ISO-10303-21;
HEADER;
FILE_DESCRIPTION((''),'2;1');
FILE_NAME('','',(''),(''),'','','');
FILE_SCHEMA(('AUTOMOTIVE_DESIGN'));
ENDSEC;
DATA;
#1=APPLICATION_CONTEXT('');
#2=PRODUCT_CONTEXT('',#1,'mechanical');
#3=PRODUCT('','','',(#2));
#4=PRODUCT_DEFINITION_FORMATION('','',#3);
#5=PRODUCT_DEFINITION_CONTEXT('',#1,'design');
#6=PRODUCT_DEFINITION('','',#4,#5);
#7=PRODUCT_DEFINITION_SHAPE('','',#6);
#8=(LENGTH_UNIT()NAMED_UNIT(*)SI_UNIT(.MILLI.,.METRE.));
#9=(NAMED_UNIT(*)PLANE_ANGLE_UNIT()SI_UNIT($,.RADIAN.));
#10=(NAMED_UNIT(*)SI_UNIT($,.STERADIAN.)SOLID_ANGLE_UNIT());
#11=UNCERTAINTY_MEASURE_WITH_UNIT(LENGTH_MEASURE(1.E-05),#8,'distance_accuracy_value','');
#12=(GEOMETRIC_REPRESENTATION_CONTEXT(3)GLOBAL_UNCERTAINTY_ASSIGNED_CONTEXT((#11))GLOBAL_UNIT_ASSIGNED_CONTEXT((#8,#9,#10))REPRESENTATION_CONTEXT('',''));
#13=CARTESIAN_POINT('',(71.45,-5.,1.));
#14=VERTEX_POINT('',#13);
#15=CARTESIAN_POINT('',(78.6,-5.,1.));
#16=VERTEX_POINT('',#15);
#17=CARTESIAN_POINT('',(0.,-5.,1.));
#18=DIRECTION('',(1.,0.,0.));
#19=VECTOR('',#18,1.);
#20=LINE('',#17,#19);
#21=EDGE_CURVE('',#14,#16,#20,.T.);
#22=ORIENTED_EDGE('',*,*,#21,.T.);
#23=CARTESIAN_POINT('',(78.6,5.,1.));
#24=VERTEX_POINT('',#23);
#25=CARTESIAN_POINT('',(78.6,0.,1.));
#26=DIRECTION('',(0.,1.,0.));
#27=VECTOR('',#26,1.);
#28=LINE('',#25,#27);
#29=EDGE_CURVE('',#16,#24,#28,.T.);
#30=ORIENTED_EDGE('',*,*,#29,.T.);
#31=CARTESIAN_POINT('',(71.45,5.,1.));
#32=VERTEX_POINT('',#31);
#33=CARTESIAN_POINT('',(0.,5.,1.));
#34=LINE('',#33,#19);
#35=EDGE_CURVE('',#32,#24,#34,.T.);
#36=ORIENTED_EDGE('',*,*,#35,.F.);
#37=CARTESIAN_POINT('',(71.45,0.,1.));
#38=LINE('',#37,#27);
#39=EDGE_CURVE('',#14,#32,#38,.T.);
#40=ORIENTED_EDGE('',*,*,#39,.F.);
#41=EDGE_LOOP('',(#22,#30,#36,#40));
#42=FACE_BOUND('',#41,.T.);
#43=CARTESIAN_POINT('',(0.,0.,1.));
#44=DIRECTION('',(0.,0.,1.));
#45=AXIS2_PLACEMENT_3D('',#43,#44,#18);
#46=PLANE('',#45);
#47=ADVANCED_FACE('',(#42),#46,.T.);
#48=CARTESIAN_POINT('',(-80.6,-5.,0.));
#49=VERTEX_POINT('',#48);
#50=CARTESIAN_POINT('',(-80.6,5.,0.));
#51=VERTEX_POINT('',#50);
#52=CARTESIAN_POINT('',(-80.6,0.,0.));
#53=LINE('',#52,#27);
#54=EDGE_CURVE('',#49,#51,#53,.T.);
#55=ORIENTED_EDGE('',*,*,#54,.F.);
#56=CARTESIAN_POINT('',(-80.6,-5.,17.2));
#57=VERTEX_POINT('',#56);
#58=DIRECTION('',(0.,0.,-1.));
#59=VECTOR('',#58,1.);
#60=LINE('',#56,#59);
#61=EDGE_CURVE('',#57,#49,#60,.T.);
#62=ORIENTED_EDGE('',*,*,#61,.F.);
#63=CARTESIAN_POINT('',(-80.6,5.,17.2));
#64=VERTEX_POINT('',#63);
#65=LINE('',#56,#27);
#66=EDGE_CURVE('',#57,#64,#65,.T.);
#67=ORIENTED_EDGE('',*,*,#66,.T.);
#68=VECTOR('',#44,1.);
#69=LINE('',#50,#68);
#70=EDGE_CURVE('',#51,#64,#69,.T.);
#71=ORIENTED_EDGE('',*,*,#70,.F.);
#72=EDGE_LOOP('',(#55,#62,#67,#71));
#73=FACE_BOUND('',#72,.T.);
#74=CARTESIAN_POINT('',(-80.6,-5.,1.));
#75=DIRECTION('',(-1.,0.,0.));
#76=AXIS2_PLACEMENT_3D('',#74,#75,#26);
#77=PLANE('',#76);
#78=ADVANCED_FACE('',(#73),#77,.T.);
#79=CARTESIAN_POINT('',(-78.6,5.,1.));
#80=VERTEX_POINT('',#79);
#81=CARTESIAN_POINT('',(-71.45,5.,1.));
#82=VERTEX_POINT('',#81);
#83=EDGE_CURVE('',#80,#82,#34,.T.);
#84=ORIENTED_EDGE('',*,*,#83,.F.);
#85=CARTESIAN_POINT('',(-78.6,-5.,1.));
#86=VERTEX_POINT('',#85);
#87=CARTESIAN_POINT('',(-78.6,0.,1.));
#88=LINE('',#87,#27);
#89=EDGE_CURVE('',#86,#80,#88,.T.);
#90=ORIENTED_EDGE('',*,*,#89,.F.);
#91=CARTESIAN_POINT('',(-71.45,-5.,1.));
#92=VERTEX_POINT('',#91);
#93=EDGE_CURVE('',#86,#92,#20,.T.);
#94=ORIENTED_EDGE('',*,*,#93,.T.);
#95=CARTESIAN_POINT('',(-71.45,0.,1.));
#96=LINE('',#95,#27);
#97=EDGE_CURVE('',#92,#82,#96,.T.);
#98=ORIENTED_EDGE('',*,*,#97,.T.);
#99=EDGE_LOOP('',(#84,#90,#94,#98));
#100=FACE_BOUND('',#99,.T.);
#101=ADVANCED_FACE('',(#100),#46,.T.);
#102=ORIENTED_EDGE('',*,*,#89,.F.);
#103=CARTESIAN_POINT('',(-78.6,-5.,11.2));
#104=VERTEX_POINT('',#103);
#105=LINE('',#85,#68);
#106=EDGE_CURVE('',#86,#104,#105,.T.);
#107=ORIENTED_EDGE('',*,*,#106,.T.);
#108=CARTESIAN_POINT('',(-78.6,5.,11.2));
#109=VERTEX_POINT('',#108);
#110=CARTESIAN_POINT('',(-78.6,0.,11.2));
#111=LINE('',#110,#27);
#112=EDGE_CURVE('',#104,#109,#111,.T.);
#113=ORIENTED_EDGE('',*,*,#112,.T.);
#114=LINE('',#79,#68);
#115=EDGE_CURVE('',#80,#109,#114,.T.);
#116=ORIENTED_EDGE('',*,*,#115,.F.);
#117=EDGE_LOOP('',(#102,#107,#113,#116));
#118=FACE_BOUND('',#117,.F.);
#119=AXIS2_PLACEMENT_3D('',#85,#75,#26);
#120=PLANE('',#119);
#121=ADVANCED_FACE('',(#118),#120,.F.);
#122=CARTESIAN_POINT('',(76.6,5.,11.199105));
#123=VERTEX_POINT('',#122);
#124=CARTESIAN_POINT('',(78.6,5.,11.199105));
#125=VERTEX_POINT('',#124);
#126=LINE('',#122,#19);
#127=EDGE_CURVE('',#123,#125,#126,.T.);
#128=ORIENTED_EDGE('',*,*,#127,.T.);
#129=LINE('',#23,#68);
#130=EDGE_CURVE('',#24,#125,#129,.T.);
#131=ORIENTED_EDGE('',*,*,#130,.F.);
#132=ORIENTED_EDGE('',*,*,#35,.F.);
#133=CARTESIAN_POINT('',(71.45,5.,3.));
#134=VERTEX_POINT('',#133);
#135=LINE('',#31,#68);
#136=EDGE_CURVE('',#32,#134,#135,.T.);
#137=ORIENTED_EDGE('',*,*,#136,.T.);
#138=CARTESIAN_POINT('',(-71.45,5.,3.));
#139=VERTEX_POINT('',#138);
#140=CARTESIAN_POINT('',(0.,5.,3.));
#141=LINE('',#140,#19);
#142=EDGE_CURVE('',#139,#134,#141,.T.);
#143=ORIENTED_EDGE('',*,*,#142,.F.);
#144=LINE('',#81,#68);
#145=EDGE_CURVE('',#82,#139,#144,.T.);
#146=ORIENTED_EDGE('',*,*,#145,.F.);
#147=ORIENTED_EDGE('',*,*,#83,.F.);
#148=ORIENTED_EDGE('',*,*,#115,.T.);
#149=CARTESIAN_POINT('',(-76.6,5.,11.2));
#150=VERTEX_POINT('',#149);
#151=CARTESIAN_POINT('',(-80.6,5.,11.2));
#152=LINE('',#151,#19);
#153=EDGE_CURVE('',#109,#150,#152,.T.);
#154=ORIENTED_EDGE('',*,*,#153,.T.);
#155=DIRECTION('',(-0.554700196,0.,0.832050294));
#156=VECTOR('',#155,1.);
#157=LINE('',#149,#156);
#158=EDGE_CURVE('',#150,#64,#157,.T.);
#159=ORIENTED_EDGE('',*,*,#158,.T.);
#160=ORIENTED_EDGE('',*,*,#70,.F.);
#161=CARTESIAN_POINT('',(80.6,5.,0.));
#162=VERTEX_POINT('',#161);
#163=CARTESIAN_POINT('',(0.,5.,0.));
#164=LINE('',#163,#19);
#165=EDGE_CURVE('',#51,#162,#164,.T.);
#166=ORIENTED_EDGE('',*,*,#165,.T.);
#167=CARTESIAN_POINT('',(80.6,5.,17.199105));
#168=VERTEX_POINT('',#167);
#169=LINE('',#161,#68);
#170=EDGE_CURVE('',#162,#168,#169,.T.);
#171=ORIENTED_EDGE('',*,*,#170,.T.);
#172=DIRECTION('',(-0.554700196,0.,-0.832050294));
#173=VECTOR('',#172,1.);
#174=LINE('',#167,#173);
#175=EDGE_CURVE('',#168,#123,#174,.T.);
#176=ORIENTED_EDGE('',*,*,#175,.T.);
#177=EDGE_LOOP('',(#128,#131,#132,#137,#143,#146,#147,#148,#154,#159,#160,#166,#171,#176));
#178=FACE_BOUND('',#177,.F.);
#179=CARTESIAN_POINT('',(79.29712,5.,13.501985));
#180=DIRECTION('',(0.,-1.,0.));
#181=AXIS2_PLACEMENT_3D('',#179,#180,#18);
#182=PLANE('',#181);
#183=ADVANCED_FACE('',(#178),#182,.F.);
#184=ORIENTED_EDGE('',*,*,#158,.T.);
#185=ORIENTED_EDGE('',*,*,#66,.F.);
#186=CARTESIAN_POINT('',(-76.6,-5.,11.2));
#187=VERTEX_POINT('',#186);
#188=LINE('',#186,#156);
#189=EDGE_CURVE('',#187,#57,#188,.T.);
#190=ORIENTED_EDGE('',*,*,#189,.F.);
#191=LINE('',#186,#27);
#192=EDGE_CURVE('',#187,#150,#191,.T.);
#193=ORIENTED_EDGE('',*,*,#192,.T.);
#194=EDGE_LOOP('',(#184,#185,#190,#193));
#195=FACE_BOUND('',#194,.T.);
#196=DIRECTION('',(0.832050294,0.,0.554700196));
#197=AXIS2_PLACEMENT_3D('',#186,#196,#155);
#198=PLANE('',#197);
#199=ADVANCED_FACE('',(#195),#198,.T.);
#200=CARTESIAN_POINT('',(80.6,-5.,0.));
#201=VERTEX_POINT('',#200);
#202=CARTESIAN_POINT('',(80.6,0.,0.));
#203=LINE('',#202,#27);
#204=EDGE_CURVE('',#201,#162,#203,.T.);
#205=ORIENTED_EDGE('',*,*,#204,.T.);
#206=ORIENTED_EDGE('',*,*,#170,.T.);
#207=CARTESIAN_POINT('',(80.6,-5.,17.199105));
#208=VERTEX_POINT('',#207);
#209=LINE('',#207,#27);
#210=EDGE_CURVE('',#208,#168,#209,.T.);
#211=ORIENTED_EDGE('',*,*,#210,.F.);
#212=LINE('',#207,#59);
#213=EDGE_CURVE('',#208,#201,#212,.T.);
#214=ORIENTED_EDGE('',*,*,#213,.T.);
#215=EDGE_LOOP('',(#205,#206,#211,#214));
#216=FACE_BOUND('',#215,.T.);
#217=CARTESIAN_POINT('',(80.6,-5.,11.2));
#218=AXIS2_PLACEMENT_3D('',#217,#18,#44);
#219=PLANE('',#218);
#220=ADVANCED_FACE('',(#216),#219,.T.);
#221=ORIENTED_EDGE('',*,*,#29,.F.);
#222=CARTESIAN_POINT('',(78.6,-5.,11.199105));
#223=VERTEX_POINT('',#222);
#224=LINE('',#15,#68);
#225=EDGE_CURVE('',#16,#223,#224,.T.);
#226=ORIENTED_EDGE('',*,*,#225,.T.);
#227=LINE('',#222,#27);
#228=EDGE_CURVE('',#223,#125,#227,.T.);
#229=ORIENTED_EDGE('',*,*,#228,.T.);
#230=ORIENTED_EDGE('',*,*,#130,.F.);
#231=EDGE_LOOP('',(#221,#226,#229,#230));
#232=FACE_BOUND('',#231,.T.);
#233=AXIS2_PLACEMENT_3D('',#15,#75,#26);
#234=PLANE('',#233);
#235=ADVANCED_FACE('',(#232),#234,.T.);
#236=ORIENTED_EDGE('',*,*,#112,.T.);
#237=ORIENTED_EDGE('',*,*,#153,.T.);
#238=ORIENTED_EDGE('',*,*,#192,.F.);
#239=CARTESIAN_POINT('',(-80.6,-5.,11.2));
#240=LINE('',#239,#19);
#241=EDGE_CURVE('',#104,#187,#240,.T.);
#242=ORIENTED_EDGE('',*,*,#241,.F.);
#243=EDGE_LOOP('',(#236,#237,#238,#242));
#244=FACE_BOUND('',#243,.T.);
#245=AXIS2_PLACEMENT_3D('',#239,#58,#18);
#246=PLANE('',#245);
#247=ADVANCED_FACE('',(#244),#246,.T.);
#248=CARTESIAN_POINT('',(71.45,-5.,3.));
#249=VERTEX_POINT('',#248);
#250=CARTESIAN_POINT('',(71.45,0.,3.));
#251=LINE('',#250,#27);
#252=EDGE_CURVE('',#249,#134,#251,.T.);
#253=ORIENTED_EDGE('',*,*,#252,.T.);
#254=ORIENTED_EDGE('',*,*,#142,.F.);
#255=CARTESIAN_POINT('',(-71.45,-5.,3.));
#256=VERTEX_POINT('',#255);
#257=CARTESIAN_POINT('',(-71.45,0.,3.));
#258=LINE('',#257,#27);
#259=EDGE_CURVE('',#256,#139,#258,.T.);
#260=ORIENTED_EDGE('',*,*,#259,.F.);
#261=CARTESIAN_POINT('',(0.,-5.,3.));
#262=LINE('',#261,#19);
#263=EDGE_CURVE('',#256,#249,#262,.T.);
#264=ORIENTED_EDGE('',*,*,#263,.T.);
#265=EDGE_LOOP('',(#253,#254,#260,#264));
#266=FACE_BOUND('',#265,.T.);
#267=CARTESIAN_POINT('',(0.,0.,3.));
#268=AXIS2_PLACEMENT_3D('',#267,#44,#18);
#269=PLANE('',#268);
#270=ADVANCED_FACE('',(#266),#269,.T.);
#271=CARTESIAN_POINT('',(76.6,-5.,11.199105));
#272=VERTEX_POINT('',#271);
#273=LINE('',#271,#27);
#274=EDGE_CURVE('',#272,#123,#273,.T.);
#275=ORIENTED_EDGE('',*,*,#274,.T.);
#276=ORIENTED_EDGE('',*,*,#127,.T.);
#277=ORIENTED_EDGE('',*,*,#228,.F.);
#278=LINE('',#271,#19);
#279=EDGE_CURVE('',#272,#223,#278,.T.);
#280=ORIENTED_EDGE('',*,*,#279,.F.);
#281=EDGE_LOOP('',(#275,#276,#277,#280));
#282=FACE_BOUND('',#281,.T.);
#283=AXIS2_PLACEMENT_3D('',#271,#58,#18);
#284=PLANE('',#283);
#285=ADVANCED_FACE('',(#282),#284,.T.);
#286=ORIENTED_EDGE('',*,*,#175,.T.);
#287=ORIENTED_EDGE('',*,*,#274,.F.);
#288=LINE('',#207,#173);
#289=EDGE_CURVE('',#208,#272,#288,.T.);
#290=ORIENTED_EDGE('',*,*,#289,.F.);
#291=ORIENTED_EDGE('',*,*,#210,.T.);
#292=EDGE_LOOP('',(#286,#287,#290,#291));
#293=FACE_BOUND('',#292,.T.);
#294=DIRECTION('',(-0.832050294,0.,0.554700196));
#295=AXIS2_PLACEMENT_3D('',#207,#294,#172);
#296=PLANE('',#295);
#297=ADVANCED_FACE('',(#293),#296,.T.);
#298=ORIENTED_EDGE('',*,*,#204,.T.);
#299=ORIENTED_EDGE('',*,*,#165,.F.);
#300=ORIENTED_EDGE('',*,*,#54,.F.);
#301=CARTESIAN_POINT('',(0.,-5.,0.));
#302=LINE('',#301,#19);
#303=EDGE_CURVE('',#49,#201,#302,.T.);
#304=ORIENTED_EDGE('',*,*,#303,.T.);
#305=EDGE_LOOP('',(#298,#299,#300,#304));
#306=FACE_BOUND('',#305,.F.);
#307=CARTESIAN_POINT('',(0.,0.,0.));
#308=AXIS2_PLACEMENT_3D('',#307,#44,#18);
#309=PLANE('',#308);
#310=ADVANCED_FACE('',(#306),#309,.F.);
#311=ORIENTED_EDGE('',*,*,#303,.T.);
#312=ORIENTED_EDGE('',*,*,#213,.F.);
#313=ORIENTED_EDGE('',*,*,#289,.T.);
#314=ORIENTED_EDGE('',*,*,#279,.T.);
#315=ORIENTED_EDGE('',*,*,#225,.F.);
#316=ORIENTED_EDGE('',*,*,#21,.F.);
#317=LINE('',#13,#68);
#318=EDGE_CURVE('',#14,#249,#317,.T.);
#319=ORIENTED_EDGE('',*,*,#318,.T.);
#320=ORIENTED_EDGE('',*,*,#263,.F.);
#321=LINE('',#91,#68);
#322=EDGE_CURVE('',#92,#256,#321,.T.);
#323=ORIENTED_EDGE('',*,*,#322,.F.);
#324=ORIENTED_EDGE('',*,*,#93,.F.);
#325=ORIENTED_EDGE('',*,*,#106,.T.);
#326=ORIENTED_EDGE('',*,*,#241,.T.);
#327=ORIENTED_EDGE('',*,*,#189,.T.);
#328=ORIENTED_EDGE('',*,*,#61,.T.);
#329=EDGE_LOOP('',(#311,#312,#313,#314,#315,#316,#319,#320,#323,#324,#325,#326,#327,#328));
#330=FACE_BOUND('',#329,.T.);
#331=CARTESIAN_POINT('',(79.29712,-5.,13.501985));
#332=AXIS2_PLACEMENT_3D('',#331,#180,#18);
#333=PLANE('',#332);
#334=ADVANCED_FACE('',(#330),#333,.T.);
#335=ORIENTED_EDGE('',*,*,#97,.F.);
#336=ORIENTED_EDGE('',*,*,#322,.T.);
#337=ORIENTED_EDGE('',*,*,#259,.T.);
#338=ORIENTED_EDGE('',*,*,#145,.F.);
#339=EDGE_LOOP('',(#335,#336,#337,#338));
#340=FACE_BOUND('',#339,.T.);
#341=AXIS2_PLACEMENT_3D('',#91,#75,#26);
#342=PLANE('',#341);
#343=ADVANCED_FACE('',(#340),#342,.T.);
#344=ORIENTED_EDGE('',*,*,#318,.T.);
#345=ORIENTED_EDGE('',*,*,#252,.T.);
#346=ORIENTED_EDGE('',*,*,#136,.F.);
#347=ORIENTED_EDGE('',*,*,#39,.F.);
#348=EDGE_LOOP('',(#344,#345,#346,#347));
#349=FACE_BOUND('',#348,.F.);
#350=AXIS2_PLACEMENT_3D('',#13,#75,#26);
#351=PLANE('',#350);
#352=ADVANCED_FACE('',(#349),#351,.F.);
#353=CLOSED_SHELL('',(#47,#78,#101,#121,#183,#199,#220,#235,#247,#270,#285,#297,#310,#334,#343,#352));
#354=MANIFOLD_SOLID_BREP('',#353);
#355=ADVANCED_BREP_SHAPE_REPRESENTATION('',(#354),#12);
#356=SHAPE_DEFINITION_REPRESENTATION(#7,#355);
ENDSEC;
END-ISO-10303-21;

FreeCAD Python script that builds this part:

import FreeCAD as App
import Part
import Sketcher
Q = App.Units.Quantity


def add_polygon(sketch, points):
    """Adds a closed chain of lines whose ends are joined by coincident constraints."""
    first, n = sketch.GeometryCount, len(points)
    for a, b in zip(points, points[1:] + points[:1]):
        sketch.addGeometry(Part.LineSegment(App.Vector(*a, 0), App.Vector(*b, 0)), False)
    for i in range(n):
        sketch.addConstraint(Sketcher.Constraint("Coincident", first + i, 2, first + (i + 1) % n, 1))

doc = App.newDocument("Part")
body = doc.addObject("PartDesign::Body", "Body")

# Sketch on XY plane
sketch1 = doc.addObject("Sketcher::SketchObject", "Sketch")
body.addObject(sketch1)
sketch1.AttachmentSupport = (doc.XY_Plane, [""])
sketch1.MapMode = "FlatFace"
add_polygon(sketch1, [(-80.6, 5), (-80.6, -5), (80.6, -5), (80.6, 5)])  # lines 0-3
sketch1.addConstraint([
    Sketcher.Constraint("Vertical", 0),
    Sketcher.Constraint("Horizontal", 1),
    Sketcher.Constraint("Vertical", 2),
    Sketcher.Constraint("Horizontal", 3),
    Sketcher.Constraint("Symmetric", 0, 2, 2, 2, -1, 1),
    Sketcher.Constraint("DistanceY", 0, 2, 0, 1, Q("10 mm")),
    Sketcher.Constraint("DistanceX", 1, 1, 1, 2, Q("161.2 mm")),
])
pad1 = doc.addObject("PartDesign::Pad", "Pad")
body.addObject(pad1)
pad1.Profile = sketch1
pad1.Length = 1

# Sketch on XY plane
sketch2 = doc.addObject("Sketcher::SketchObject", "Sketch001")
body.addObject(sketch2)
sketch2.AttachmentSupport = (doc.XY_Plane, [""])
sketch2.MapMode = "FlatFace"
sketch2.AttachmentOffset = App.Placement(App.Vector(0, 0, 1), App.Rotation())
add_polygon(sketch2, [(-80.6, 5), (-80.6, -5), (-78.6, -5), (-78.6, 5)])  # lines 0-3
add_polygon(sketch2, [(78.6, 5), (78.6, -5), (80.6, -5), (80.6, 5)])  # lines 4-7
sketch2.addConstraint([
    Sketcher.Constraint("Vertical", 0),
    Sketcher.Constraint("Horizontal", 1),
    Sketcher.Constraint("Vertical", 2),
    Sketcher.Constraint("Horizontal", 3),
    Sketcher.Constraint("Vertical", 4),
    Sketcher.Constraint("Horizontal", 5),
    Sketcher.Constraint("Vertical", 6),
    Sketcher.Constraint("Horizontal", 7),
    Sketcher.Constraint("Symmetric", 2, 2, 4, 2, -1, 1),
    Sketcher.Constraint("Symmetric", 0, 2, 6, 2, -1, 1),
    Sketcher.Constraint("Horizontal", 1, 2, 4, 2),
    Sketcher.Constraint("DistanceX", 1, 1, 1, 2, Q("2 mm")),
    Sketcher.Constraint("DistanceY", 0, 2, 0, 1, Q("10 mm")),
    Sketcher.Constraint("DistanceX", 0, 2, -1, 1, Q("80.6 mm")),
])
pad2 = doc.addObject("PartDesign::Pad", "Pad001")
body.addObject(pad2)
pad2.Profile = sketch2
pad2.Length = 10.2

# Sketch on XY plane
sketch3 = doc.addObject("Sketcher::SketchObject", "Sketch002")
body.addObject(sketch3)
sketch3.AttachmentSupport = (doc.XY_Plane, [""])
sketch3.MapMode = "FlatFace"
sketch3.AttachmentOffset = App.Placement(App.Vector(0, 0, 1), App.Rotation())
add_polygon(sketch3, [(-71.45, 5), (-71.45, -5), (71.45, -5), (71.45, 5)])  # lines 0-3
sketch3.addConstraint([
    Sketcher.Constraint("Vertical", 0),
    Sketcher.Constraint("Horizontal", 1),
    Sketcher.Constraint("Vertical", 2),
    Sketcher.Constraint("Horizontal", 3),
    Sketcher.Constraint("Symmetric", 0, 2, 2, 2, -1, 1),
    Sketcher.Constraint("DistanceY", 0, 2, 0, 1, Q("10 mm")),
    Sketcher.Constraint("DistanceX", 1, 1, 1, 2, Q("142.9 mm")),
])
pad3 = doc.addObject("PartDesign::Pad", "Pad002")
body.addObject(pad3)
pad3.Profile = sketch3
pad3.Length = 2

# Sketch on XZ plane
sketch4 = doc.addObject("Sketcher::SketchObject", "Sketch003")
body.addObject(sketch4)
sketch4.AttachmentSupport = (doc.XZ_Plane, [""])
sketch4.MapMode = "FlatFace"
sketch4.AttachmentOffset = App.Placement(App.Vector(0, 0, 5), App.Rotation())
add_polygon(sketch4, [(78.6, 11.2), (80.6, 11.2), (80.6, 17.199105), (76.6, 11.199105), (78.6, 11.199105)])  # lines 0-4
add_polygon(sketch4, [(-76.6, 11.2), (-80.6, 17.2), (-80.6, 11.2)])  # lines 5-7
sketch4.addConstraint([
    Sketcher.Constraint("Horizontal", 0),
    Sketcher.Constraint("Vertical", 1),
    Sketcher.Constraint("Horizontal", 3),
    Sketcher.Constraint("Vertical", 4),
    Sketcher.Constraint("Vertical", 6),
    Sketcher.Constraint("Horizontal", 7),
    Sketcher.Constraint("Symmetric", 0, 2, 6, 2, -2),
    Sketcher.Constraint("Equal", 0, 3),
    Sketcher.Constraint("Equal", 2, 5),
    Sketcher.Constraint("DistanceX", 0, 1, 0, 2, Q("2 mm")),
    Sketcher.Constraint("DistanceX", 7, 1, 7, 2, Q("4 mm")),
    Sketcher.Constraint("DistanceY", 6, 2, 6, 1, Q("6 mm")),
    Sketcher.Constraint("DistanceX", -1, 1, 0, 2, Q("80.6 mm")),
    Sketcher.Constraint("DistanceY", -1, 1, 0, 2, Q("11.2 mm")),
    Sketcher.Constraint("DistanceY", 1, 1, 1, 2, Q("5.999105 mm")),
])
pad4 = doc.addObject("PartDesign::Pad", "Pad003")
body.addObject(pad4)
pad4.Profile = sketch4
pad4.Length = 10
pad4.Reversed = True

doc.recompute()
